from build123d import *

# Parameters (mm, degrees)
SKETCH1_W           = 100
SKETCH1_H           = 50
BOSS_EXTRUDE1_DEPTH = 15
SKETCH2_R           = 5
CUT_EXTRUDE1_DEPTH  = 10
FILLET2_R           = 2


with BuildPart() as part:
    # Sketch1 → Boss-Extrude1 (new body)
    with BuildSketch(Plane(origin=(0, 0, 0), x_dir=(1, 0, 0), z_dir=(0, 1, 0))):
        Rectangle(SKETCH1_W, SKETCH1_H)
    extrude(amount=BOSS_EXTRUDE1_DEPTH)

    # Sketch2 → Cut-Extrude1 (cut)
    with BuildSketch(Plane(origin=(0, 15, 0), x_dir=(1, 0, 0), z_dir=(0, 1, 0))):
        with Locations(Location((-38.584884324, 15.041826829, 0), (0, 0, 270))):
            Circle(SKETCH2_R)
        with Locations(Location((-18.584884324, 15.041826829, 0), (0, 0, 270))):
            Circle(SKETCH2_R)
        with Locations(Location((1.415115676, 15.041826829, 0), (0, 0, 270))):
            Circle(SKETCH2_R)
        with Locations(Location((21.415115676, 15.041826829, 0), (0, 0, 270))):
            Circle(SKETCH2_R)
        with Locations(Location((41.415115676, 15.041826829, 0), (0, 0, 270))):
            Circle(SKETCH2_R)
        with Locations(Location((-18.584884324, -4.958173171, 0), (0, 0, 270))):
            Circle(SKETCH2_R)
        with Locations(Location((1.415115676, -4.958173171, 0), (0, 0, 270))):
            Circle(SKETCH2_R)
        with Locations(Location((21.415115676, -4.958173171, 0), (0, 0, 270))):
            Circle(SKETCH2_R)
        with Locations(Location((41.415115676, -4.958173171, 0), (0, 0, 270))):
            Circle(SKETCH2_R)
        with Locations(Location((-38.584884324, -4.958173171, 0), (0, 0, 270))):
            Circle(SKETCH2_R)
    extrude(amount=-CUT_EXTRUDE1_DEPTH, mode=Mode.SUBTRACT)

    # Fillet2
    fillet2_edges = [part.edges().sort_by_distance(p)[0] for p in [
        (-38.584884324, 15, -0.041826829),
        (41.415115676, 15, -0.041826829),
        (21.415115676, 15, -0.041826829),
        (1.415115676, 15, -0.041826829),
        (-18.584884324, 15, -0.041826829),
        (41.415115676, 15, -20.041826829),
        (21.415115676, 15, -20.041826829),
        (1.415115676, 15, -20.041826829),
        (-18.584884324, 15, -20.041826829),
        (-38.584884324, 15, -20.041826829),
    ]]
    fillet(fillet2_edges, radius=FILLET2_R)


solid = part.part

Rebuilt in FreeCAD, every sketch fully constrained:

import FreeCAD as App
import Part
import Sketcher
from FreeCAD import Vector


def edges_at(feature, points):
    """Names of the edges that pass closest to the given points."""
    edges = feature.Shape.Edges
    near = lambda p: min(range(len(edges)), key=lambda i: edges[i].distToShape(Part.Vertex(*p))[0])
    return sorted({f"Edge{near(p) + 1}" for p in points})

doc = App.newDocument("Part")
body = doc.addObject("PartDesign::Body", "Body")

# Sketch on XZ plane
sketch1 = body.newObject("Sketcher::SketchObject", "Sketch")
sketch1.AttachmentSupport = (doc.getObject("XZ_Plane"), [""])
sketch1.MapMode = "FlatFace"
sketch1.addGeometry(Part.LineSegment(Vector(-50, -25, 0), Vector(-50, 25, 0)), False)
sketch1.addGeometry(Part.LineSegment(Vector(-50, 25, 0), Vector(50, 25, 0)), False)
sketch1.addGeometry(Part.LineSegment(Vector(50, 25, 0), Vector(50, -25, 0)), False)
sketch1.addGeometry(Part.LineSegment(Vector(50, -25, 0), Vector(-50, -25, 0)), False)
sketch1.addConstraint(Sketcher.Constraint("Coincident", 0, 2, 1, 1))
sketch1.addConstraint(Sketcher.Constraint("Coincident", 1, 2, 2, 1))
sketch1.addConstraint(Sketcher.Constraint("Coincident", 2, 2, 3, 1))
sketch1.addConstraint(Sketcher.Constraint("Coincident", 3, 2, 0, 1))
sketch1.addConstraint(Sketcher.Constraint("Vertical", 0))
sketch1.addConstraint(Sketcher.Constraint("Horizontal", 1))
sketch1.addConstraint(Sketcher.Constraint("Vertical", 2))
sketch1.addConstraint(Sketcher.Constraint("Horizontal", 3))
sketch1.addConstraint(Sketcher.Constraint("Symmetric", 0, 2, 2, 2, -1, 1))
sketch1.addConstraint(Sketcher.Constraint("DistanceX", 1, 1, 1, 2, 100.0))
sketch1.addConstraint(Sketcher.Constraint("DistanceY", 0, 1, 0, 2, 50.0))
pad1 = body.newObject("PartDesign::Pad", "Pad")
pad1.Profile = sketch1
pad1.Length = 15
pad1.Reversed = True

# Sketch on XZ plane
sketch2 = body.newObject("Sketcher::SketchObject", "Sketch001")
sketch2.AttachmentSupport = (doc.getObject("XZ_Plane"), [""])
sketch2.MapMode = "FlatFace"
sketch2.AttachmentOffset = App.Placement(Vector(0, 0, -15), App.Rotation())
sketch2.addGeometry(Part.Circle(Vector(-39, -15, 0), Vector(0, 0, 1), 5), False)
sketch2.addGeometry(Part.Circle(Vector(-19, -15, 0), Vector(0, 0, 1), 5), False)
sketch2.addGeometry(Part.Circle(Vector(1, -15, 0), Vector(0, 0, 1), 5), False)
sketch2.addGeometry(Part.Circle(Vector(21, -15, 0), Vector(0, 0, 1), 5), False)
sketch2.addGeometry(Part.Circle(Vector(41, -15, 0), Vector(0, 0, 1), 5), False)
sketch2.addGeometry(Part.Circle(Vector(-19, 5, 0), Vector(0, 0, 1), 5), False)
sketch2.addGeometry(Part.Circle(Vector(1, 5, 0), Vector(0, 0, 1), 5), False)
sketch2.addGeometry(Part.Circle(Vector(21, 5, 0), Vector(0, 0, 1), 5), False)
sketch2.addGeometry(Part.Circle(Vector(41, 5, 0), Vector(0, 0, 1), 5), False)
sketch2.addGeometry(Part.Circle(Vector(-39, 5, 0), Vector(0, 0, 1), 5), False)
sketch2.addConstraint(Sketcher.Constraint("Equal", 0, 1))
sketch2.addConstraint(Sketcher.Constraint("Equal", 1, 2))
sketch2.addConstraint(Sketcher.Constraint("Equal", 2, 3))
sketch2.addConstraint(Sketcher.Constraint("Equal", 3, 4))
sketch2.addConstraint(Sketcher.Constraint("Equal", 4, 5))
sketch2.addConstraint(Sketcher.Constraint("Equal", 5, 6))
sketch2.addConstraint(Sketcher.Constraint("Equal", 6, 7))
sketch2.addConstraint(Sketcher.Constraint("Equal", 7, 8))
sketch2.addConstraint(Sketcher.Constraint("Equal", 8, 9))
sketch2.addConstraint(Sketcher.Constraint("Horizontal", 0, 3, 1, 3))
sketch2.addConstraint(Sketcher.Constraint("Horizontal", 1, 3, 2, 3))
sketch2.addConstraint(Sketcher.Constraint("Horizontal", 2, 3, 3, 3))
sketch2.addConstraint(Sketcher.Constraint("Horizontal", 3, 3, 4, 3))
sketch2.addConstraint(Sketcher.Constraint("Horizontal", 5, 3, 6, 3))
sketch2.addConstraint(Sketcher.Constraint("Horizontal", 6, 3, 7, 3))
sketch2.addConstraint(Sketcher.Constraint("Horizontal", 7, 3, 8, 3))
sketch2.addConstraint(Sketcher.Constraint("Horizontal", 8, 3, 9, 3))
sketch2.addConstraint(Sketcher.Constraint("Vertical", 1, 3, 5, 3))
sketch2.addConstraint(Sketcher.Constraint("Vertical", 2, 3, 6, 3))
sketch2.addConstraint(Sketcher.Constraint("Vertical", 3, 3, 7, 3))
sketch2.addConstraint(Sketcher.Constraint("Vertical", 4, 3, 8, 3))
sketch2.addConstraint(Sketcher.Constraint("Vertical", 0, 3, 9, 3))
sketch2.addConstraint(Sketcher.Constraint("Diameter", 0, 10.0))
sketch2.addConstraint(Sketcher.Constraint("DistanceX", 0, 3, 1, 3, 20.0))
sketch2.addConstraint(Sketcher.Constraint("DistanceX", 1, 3, 2, 3, 20.0))
sketch2.addConstraint(Sketcher.Constraint("DistanceX", 2, 3, 3, 3, 20.0))
sketch2.addConstraint(Sketcher.Constraint("DistanceX", 3, 3, 4, 3, 20.0))
sketch2.addConstraint(Sketcher.Constraint("DistanceY", 1, 3, 5, 3, 20.0))
sketch2.addConstraint(Sketcher.Constraint("DistanceX", 0, 3, -1, 1, 38.584884))
sketch2.addConstraint(Sketcher.Constraint("DistanceY", 0, 3, -1, 1, 15.041827))
pocket1 = body.newObject("PartDesign::Pocket", "Pocket")
pocket1.Profile = sketch2
pocket1.Length = 10
pocket1.Reversed = True
doc.recompute()

fillet = body.newObject("PartDesign::Fillet", "Fillet")
fillet.Base = (pocket1, edges_at(pocket1, [
    (-38.585, 15, -0.042),
    (41.415, 15, -0.042),
    (21.415, 15, -0.042),
    (1.415, 15, -0.042),
    (-18.585, 15, -0.042),
    (41.415, 15, -20.042),
    (21.415, 15, -20.042),
    (1.415, 15, -20.042),
    (-18.585, 15, -20.042),
    (-38.585, 15, -20.042),
]))
fillet.Radius = 2

doc.recompute()
